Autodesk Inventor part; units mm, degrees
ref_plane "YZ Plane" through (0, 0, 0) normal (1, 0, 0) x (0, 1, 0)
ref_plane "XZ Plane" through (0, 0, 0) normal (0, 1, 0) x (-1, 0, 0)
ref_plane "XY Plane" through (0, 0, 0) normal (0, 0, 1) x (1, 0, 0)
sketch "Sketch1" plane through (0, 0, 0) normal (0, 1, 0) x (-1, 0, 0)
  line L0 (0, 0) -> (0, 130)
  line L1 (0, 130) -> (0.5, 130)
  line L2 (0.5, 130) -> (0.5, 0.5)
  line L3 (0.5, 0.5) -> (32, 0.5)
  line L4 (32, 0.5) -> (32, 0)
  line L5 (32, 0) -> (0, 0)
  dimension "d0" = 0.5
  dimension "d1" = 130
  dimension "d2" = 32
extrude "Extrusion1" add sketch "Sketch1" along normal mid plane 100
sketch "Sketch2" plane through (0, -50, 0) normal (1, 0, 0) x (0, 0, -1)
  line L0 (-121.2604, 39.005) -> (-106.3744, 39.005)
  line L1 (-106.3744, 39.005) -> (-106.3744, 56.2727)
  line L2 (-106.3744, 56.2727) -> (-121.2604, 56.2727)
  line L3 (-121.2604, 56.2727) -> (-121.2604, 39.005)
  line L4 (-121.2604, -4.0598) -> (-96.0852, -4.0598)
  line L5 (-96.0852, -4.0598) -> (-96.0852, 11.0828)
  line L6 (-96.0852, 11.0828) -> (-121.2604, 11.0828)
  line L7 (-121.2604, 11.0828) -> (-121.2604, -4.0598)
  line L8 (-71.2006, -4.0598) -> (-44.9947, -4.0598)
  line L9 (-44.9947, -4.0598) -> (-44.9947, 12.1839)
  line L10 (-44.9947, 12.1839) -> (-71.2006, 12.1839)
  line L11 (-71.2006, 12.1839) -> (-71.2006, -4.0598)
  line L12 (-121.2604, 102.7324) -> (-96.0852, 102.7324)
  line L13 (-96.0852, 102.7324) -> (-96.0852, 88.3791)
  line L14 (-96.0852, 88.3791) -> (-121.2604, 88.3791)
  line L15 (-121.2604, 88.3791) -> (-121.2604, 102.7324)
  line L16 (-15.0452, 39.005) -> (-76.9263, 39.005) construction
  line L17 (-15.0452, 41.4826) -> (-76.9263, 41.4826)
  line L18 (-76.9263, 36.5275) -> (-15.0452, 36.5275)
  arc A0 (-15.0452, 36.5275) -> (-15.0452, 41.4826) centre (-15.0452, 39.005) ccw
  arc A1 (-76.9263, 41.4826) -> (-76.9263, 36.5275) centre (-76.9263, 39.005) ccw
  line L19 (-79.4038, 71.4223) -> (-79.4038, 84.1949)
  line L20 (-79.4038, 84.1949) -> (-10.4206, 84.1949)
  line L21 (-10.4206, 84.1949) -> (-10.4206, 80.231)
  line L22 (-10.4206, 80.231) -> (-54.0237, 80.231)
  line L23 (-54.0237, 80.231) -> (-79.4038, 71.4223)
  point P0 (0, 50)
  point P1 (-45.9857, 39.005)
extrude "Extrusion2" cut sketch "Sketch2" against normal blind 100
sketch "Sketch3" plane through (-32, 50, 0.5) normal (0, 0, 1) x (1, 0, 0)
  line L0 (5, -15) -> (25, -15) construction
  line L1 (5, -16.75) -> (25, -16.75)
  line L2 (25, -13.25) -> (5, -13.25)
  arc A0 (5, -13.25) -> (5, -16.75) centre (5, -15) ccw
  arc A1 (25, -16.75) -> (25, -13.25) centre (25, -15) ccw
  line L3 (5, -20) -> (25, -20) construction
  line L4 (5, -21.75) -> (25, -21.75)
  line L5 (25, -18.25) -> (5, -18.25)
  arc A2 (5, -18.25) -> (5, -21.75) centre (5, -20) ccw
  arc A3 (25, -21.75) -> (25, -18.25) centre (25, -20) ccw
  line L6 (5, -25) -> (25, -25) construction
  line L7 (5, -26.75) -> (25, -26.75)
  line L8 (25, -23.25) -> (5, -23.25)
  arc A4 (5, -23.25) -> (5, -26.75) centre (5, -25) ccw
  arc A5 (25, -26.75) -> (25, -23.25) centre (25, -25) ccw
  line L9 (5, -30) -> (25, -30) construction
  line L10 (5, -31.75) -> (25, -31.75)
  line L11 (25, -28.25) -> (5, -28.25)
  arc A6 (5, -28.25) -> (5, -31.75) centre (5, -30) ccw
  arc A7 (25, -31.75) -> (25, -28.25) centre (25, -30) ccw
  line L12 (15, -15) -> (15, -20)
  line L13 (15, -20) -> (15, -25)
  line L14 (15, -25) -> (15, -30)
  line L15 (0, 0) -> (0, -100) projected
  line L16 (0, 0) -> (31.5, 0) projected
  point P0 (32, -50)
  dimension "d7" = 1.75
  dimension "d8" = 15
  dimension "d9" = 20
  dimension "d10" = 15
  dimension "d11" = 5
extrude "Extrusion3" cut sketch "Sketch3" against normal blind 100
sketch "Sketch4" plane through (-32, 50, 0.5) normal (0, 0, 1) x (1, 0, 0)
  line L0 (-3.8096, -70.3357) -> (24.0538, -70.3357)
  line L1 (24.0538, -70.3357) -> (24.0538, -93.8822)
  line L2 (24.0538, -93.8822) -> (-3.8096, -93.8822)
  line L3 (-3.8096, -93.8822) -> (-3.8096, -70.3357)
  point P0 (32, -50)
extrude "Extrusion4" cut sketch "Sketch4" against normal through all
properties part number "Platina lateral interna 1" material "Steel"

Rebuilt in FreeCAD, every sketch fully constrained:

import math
import FreeCAD as App
import Part
import Sketcher

V = App.Vector
Q = App.Units.Quantity

doc = App.newDocument("Part")
params = doc.addObject("Spreadsheet::Sheet", "Params")
for row, (alias, value) in enumerate([
    ("sketch1_width", "32 mm"),
    ("sketch1_height", "130 mm"),
    ("sketch1_width2", "0.5 mm"),
    ("pad1_length", "100 mm"),
    ("pocket1_length", "100 mm"),
    ("sketch3_width", "20 mm"),
    ("sketch3_radius", "1.75 mm"),
    ("pocket2_length", "100 mm"),
], start=1):
    params.set(f"A{row}", alias)
    params.set(f"B{row}", "=" + value)
    params.setAlias(f"B{row}", alias)

body = doc.addObject("PartDesign::Body", "Body")

sketch1 = doc.addObject("Sketcher::SketchObject", "Sketch")
body.addObject(sketch1)
sketch1.AttachmentSupport = (doc.XZ_Plane, [""])
sketch1.MapMode = "FlatFace"
sketch1.addGeometry([
    Part.LineSegment(V(0, 130, 0), V(0, 0, 0)),
    Part.LineSegment(V(0, 0, 0), V(-32, 0, 0)),
    Part.LineSegment(V(-32, 0, 0), V(-32, 0.5, 0)),
    Part.LineSegment(V(-32, 0.5, 0), V(-0.5, 0.5, 0)),
    Part.LineSegment(V(-0.5, 0.5, 0), V(-0.5, 130, 0)),
    Part.LineSegment(V(-0.5, 130, 0), V(0, 130, 0)),
], False)
sketch1.addConstraint([
    Sketcher.Constraint("Coincident", 0, 2, 1, 1),
    Sketcher.Constraint("Coincident", 1, 2, 2, 1),
    Sketcher.Constraint("Coincident", 2, 2, 3, 1),
    Sketcher.Constraint("Coincident", 3, 2, 4, 1),
    Sketcher.Constraint("Coincident", 4, 2, 5, 1),
    Sketcher.Constraint("Coincident", 5, 2, 0, 1),
    Sketcher.Constraint("Vertical", 0),
    Sketcher.Constraint("Horizontal", 1),
    Sketcher.Constraint("Vertical", 2),
    Sketcher.Constraint("Horizontal", 3),
    Sketcher.Constraint("Vertical", 4),
    Sketcher.Constraint("Horizontal", 5),
    Sketcher.Constraint("Coincident", 0, 2, -1, 1),
    Sketcher.Constraint("Equal", 5, 2),
    Sketcher.Constraint("DistanceX", 1, 2, 1, 1, 32.0),
    Sketcher.Constraint("DistanceY", 0, 2, 0, 1, 130.0),
    Sketcher.Constraint("DistanceX", 5, 1, 5, 2, 0.5),
])
sketch1.setExpression("Constraints[14]", "Params.sketch1_width")
sketch1.setExpression("Constraints[15]", "Params.sketch1_height")
sketch1.setExpression("Constraints[16]", "Params.sketch1_width2")
pad1 = doc.addObject("PartDesign::Pad", "Pad")
body.addObject(pad1)
pad1.Profile = sketch1
pad1.setExpression("Length", "Params.pad1_length")
pad1.Midplane = True

sketch2 = doc.addObject("Sketcher::SketchObject", "Sketch001")
body.addObject(sketch2)
sketch2.AttachmentSupport = (doc.YZ_Plane, [""])
sketch2.MapMode = "FlatFace"
sketch2.addGeometry([
    Part.LineSegment(V(6.3, 121.3, 0), V(-11, 121.3, 0)),
    Part.LineSegment(V(-11, 121.3, 0), V(-11, 106.4, 0)),
    Part.LineSegment(V(-11, 106.4, 0), V(6.3, 106.4, 0)),
    Part.LineSegment(V(6.3, 106.4, 0), V(6.3, 121.3, 0)),
    Part.LineSegment(V(-38.9, 121.3, 0), V(-54.1, 121.3, 0)),
    Part.LineSegment(V(-54.1, 121.3, 0), V(-54.1, 96.1, 0)),
    Part.LineSegment(V(-54.1, 96.1, 0), V(-38.9, 96.1, 0)),
    Part.LineSegment(V(-38.9, 96.1, 0), V(-38.9, 121.3, 0)),
    Part.LineSegment(V(-37.8, 71.2, 0), V(-54.1, 71.2, 0)),
    Part.LineSegment(V(-54.1, 71.2, 0), V(-54.1, 45, 0)),
    Part.LineSegment(V(-54.1, 45, 0), V(-37.8, 45, 0)),
    Part.LineSegment(V(-37.8, 45, 0), V(-37.8, 71.2, 0)),
    Part.LineSegment(V(52.7, 96.1, 0), V(52.7, 121.3, 0)),
    Part.LineSegment(V(52.7, 121.3, 0), V(38.4, 121.3, 0)),
    Part.LineSegment(V(38.4, 121.3, 0), V(38.4, 96.1, 0)),
    Part.LineSegment(V(38.4, 96.1, 0), V(52.7, 96.1, 0)),
    Part.ArcOfCircle(Part.Circle(V(-11, 15, 0), V(0, 0, 1), 2.5), math.radians(180), math.radians(360)),
    Part.LineSegment(V(-8.5, 15, 0), V(-8.5, 76.9, 0)),
    Part.ArcOfCircle(Part.Circle(V(-11, 76.9, 0), V(0, 0, 1), 2.5), math.radians(0), math.radians(180)),
    Part.LineSegment(V(-13.5, 76.9, 0), V(-13.5, 15, 0)),
    Part.LineSegment(V(34.2, 79.4, 0), V(21.4, 79.4, 0)),
    Part.LineSegment(V(21.4, 79.4, 0), V(30.2, 54, 0)),
    Part.LineSegment(V(30.2, 54, 0), V(30.2, 10.4, 0)),
    Part.LineSegment(V(30.2, 10.4, 0), V(34.2, 10.4, 0)),
    Part.LineSegment(V(34.2, 10.4, 0), V(34.2, 79.4, 0)),
], False)
sketch2.addConstraint([
    Sketcher.Constraint("Coincident", 0, 2, 1, 1),
    Sketcher.Constraint("Coincident", 1, 2, 2, 1),
    Sketcher.Constraint("Coincident", 2, 2, 3, 1),
    Sketcher.Constraint("Coincident", 3, 2, 0, 1),
    Sketcher.Constraint("Coincident", 4, 2, 5, 1),
    Sketcher.Constraint("Coincident", 5, 2, 6, 1),
    Sketcher.Constraint("Coincident", 6, 2, 7, 1),
    Sketcher.Constraint("Coincident", 7, 2, 4, 1),
    Sketcher.Constraint("Coincident", 8, 2, 9, 1),
    Sketcher.Constraint("Coincident", 9, 2, 10, 1),
    Sketcher.Constraint("Coincident", 10, 2, 11, 1),
    Sketcher.Constraint("Coincident", 11, 2, 8, 1),
    Sketcher.Constraint("Coincident", 12, 2, 13, 1),
    Sketcher.Constraint("Coincident", 13, 2, 14, 1),
    Sketcher.Constraint("Coincident", 14, 2, 15, 1),
    Sketcher.Constraint("Coincident", 15, 2, 12, 1),
    Sketcher.Constraint("Tangent", 16, 2, 17, 1),
    Sketcher.Constraint("Tangent", 17, 2, 18, 1),
    Sketcher.Constraint("Tangent", 18, 2, 19, 1),
    Sketcher.Constraint("Tangent", 19, 2, 16, 1),
    Sketcher.Constraint("Coincident", 20, 2, 21, 1),
    Sketcher.Constraint("Coincident", 21, 2, 22, 1),
    Sketcher.Constraint("Coincident", 22, 2, 23, 1),
    Sketcher.Constraint("Coincident", 23, 2, 24, 1),
    Sketcher.Constraint("Coincident", 24, 2, 20, 1),
    Sketcher.Constraint("Horizontal", 0),
    Sketcher.Constraint("Vertical", 1),
    Sketcher.Constraint("Horizontal", 2),
    Sketcher.Constraint("Vertical", 3),
    Sketcher.Constraint("Horizontal", 4),
    Sketcher.Constraint("Vertical", 5),
    Sketcher.Constraint("Horizontal", 6),
    Sketcher.Constraint("Vertical", 7),
    Sketcher.Constraint("Horizontal", 8),
    Sketcher.Constraint("Vertical", 9),
    Sketcher.Constraint("Horizontal", 10),
    Sketcher.Constraint("Vertical", 11),
    Sketcher.Constraint("Vertical", 12),
    Sketcher.Constraint("Horizontal", 13),
    Sketcher.Constraint("Vertical", 14),
    Sketcher.Constraint("Horizontal", 15),
    Sketcher.Constraint("Vertical", 17),
    Sketcher.Constraint("Vertical", 19),
    Sketcher.Constraint("Horizontal", 20),
    Sketcher.Constraint("Vertical", 22),
    Sketcher.Constraint("Horizontal", 23),
    Sketcher.Constraint("Vertical", 24),
    Sketcher.Constraint("Horizontal", 3, 2, 4, 2),
    Sketcher.Constraint("Horizontal", 7, 2, 12, 2),
    Sketcher.Constraint("Horizontal", 6, 2, 14, 2),
    Sketcher.Constraint("Vertical", 18, 3, 0, 2),
    Sketcher.Constraint("Vertical", 5, 2, 8, 2),
    Sketcher.Constraint("Angle", 21, Q("-70.8596 deg")),
    Sketcher.Constraint("Radius", 16, 2.4775),
    Sketcher.Constraint("DistanceX", 23, 1, 23, 2, 3.964),
    Sketcher.Constraint("DistanceY", 1, 2, 1, 1, 14.886),
    Sketcher.Constraint("DistanceY", 9, 2, 9, 1, 26.206),
    Sketcher.Constraint("DistanceY", 17, 1, 17, 2, 61.881),
    Sketcher.Constraint("DistanceY", 22, 2, 22, 1, 43.603),
    Sketcher.Constraint("DistanceX", 17, 2, 2, 2, 14.79),
    Sketcher.Constraint("DistanceY", 21, 2, 20, 2, 25.38),
    Sketcher.Constraint("DistanceX", 16, 3, 23, 2, 45.19),
    Sketcher.Constraint("DistanceX", 4, 2, 4, 1, 15.1426),
    Sketcher.Constraint("DistanceX", 8, 2, 8, 1, 16.2437),
    Sketcher.Constraint("DistanceX", 13, 2, 13, 1, 14.3533),
    Sketcher.Constraint("DistanceY", 5, 2, 5, 1, 25.1752),
    Sketcher.Constraint("DistanceX", 16, 3, -1, 1, 10.995),
    Sketcher.Constraint("DistanceX", 10, 2, -1, 1, 37.816),
    Sketcher.Constraint("DistanceX", -1, 1, 13, 2, 38.379),
    Sketcher.Constraint("DistanceY", 18, 3, 0, 2, 44.334),
    Sketcher.Constraint("DistanceY", -1, 1, 16, 3, 15.0452),
    Sketcher.Constraint("DistanceY", -1, 1, 8, 2, 71.2006),
    Sketcher.Constraint("DistanceY", -1, 1, 20, 2, 79.4038),
])
pocket1 = doc.addObject("PartDesign::Pocket", "Pocket")
body.addObject(pocket1)
pocket1.Profile = sketch2
pocket1.setExpression("Length", "Params.pocket1_length")

sketch3 = doc.addObject("Sketcher::SketchObject", "Sketch002")
body.addObject(sketch3)
sketch3.AttachmentSupport = (doc.XY_Plane, [""])
sketch3.MapMode = "FlatFace"
sketch3.AttachmentOffset = App.Placement(V(0, 0, 0.5), App.Rotation())
sketch3.addGeometry([
    Part.ArcOfCircle(Part.Circle(V(-27, 35, 0), V(0, 0, 1), 1.8), math.radians(90), math.radians(270)),
    Part.LineSegment(V(-27, 33.2, 0), V(-7, 33.2, 0)),
    Part.ArcOfCircle(Part.Circle(V(-7, 35, 0), V(0, 0, 1), 1.8), math.radians(-90), math.radians(90)),
    Part.LineSegment(V(-7, 36.8, 0), V(-27, 36.8, 0)),
    Part.LineSegment(V(-7, 21.8, 0), V(-27, 21.8, 0)),
    Part.ArcOfCircle(Part.Circle(V(-27, 20, 0), V(0, 0, 1), 1.8), math.radians(90), math.radians(270)),
    Part.LineSegment(V(-27, 18.2, 0), V(-7, 18.2, 0)),
    Part.ArcOfCircle(Part.Circle(V(-7, 20, 0), V(0, 0, 1), 1.8), math.radians(-90), math.radians(90)),
    Part.LineSegment(V(-7, 26.8, 0), V(-27, 26.8, 0)),
    Part.ArcOfCircle(Part.Circle(V(-27, 25, 0), V(0, 0, 1), 1.8), math.radians(90), math.radians(270)),
    Part.LineSegment(V(-27, 23.2, 0), V(-7, 23.2, 0)),
    Part.ArcOfCircle(Part.Circle(V(-7, 25, 0), V(0, 0, 1), 1.8), math.radians(-90), math.radians(90)),
    Part.LineSegment(V(-7, 31.8, 0), V(-27, 31.8, 0)),
    Part.ArcOfCircle(Part.Circle(V(-27, 30, 0), V(0, 0, 1), 1.8), math.radians(90), math.radians(270)),
    Part.LineSegment(V(-27, 28.2, 0), V(-7, 28.2, 0)),
    Part.ArcOfCircle(Part.Circle(V(-7, 30, 0), V(0, 0, 1), 1.8), math.radians(-90), math.radians(90)),
], False)
sketch3.addConstraint([
    Sketcher.Constraint("Tangent", 0, 2, 1, 1),
    Sketcher.Constraint("Tangent", 1, 2, 2, 1),
    Sketcher.Constraint("Tangent", 2, 2, 3, 1),
    Sketcher.Constraint("Tangent", 3, 2, 0, 1),
    Sketcher.Constraint("Tangent", 4, 2, 5, 1),
    Sketcher.Constraint("Tangent", 5, 2, 6, 1),
    Sketcher.Constraint("Tangent", 6, 2, 7, 1),
    Sketcher.Constraint("Tangent", 7, 2, 4, 1),
    Sketcher.Constraint("Tangent", 8, 2, 9, 1),
    Sketcher.Constraint("Tangent", 9, 2, 10, 1),
    Sketcher.Constraint("Tangent", 10, 2, 11, 1),
    Sketcher.Constraint("Tangent", 11, 2, 8, 1),
    Sketcher.Constraint("Tangent", 12, 2, 13, 1),
    Sketcher.Constraint("Tangent", 13, 2, 14, 1),
    Sketcher.Constraint("Tangent", 14, 2, 15, 1),
    Sketcher.Constraint("Tangent", 15, 2, 12, 1),
    Sketcher.Constraint("Horizontal", 1),
    Sketcher.Constraint("Horizontal", 3),
    Sketcher.Constraint("Horizontal", 4),
    Sketcher.Constraint("Horizontal", 6),
    Sketcher.Constraint("Horizontal", 8),
    Sketcher.Constraint("Horizontal", 10),
    Sketcher.Constraint("Horizontal", 12),
    Sketcher.Constraint("Horizontal", 14),
    Sketcher.Constraint("Equal", 2, 5),
    Sketcher.Constraint("Equal", 7, 9),
    Sketcher.Constraint("Equal", 11, 13),
    Sketcher.Constraint("Vertical", 0, 3, 5, 3),
    Sketcher.Constraint("Vertical", 2, 3, 7, 3),
    Sketcher.Constraint("Vertical", 5, 3, 9, 3),
    Sketcher.Constraint("Vertical", 7, 3, 11, 3),
    Sketcher.Constraint("Vertical", 9, 3, 13, 3),
    Sketcher.Constraint("Vertical", 11, 3, 15, 3),
    Sketcher.Constraint("DistanceX", 1, 1, 1, 2, 20.0),
    Sketcher.Constraint("Radius", 0, 1.75),
    Sketcher.Constraint("DistanceY", -1, 1, 5, 3, 20.0),
    Sketcher.Constraint("DistanceY", 5, 3, 0, 3, 15.0),
    Sketcher.Constraint("DistanceY", 5, 3, 9, 3, 5.0),
    Sketcher.Constraint("DistanceY", 13, 3, 0, 3, 5.0),
    Sketcher.Constraint("DistanceX", 0, 3, -1, 1, 27.0),
])
sketch3.setExpression("Constraints[33]", "Params.sketch3_width")
sketch3.setExpression("Constraints[34]", "Params.sketch3_radius")
pocket2 = doc.addObject("PartDesign::Pocket", "Pocket001")
body.addObject(pocket2)
pocket2.Profile = sketch3
pocket2.setExpression("Length", "Params.pocket2_length")

sketch4 = doc.addObject("Sketcher::SketchObject", "Sketch003")
body.addObject(sketch4)
sketch4.AttachmentSupport = (doc.XY_Plane, [""])
sketch4.MapMode = "FlatFace"
sketch4.AttachmentOffset = App.Placement(V(0, 0, 0.5), App.Rotation())
sketch4.addGeometry([
    Part.LineSegment(V(-8, -20, 0), V(-36, -20, 0)),
    Part.LineSegment(V(-36, -20, 0), V(-36, -44, 0)),
    Part.LineSegment(V(-36, -44, 0), V(-8, -44, 0)),
    Part.LineSegment(V(-8, -44, 0), V(-8, -20, 0)),
], False)
sketch4.addConstraint([
    Sketcher.Constraint("Coincident", 0, 2, 1, 1),
    Sketcher.Constraint("Coincident", 1, 2, 2, 1),
    Sketcher.Constraint("Coincident", 2, 2, 3, 1),
    Sketcher.Constraint("Coincident", 3, 2, 0, 1),
    Sketcher.Constraint("Horizontal", 0),
    Sketcher.Constraint("Vertical", 1),
    Sketcher.Constraint("Horizontal", 2),
    Sketcher.Constraint("Vertical", 3),
    Sketcher.Constraint("DistanceX", 0, 2, 0, 1, 27.8634),
    Sketcher.Constraint("DistanceY", 1, 2, 1, 1, 23.5465),
    Sketcher.Constraint("DistanceX", 0, 2, -1, 1, 35.8096),
    Sketcher.Constraint("DistanceY", 0, 2, -1, 1, 20.3357),
])
pocket3 = doc.addObject("PartDesign::Pocket", "Pocket002")
body.addObject(pocket3)
pocket3.Profile = sketch4
pocket3.Type = "ThroughAll"

doc.recompute()
